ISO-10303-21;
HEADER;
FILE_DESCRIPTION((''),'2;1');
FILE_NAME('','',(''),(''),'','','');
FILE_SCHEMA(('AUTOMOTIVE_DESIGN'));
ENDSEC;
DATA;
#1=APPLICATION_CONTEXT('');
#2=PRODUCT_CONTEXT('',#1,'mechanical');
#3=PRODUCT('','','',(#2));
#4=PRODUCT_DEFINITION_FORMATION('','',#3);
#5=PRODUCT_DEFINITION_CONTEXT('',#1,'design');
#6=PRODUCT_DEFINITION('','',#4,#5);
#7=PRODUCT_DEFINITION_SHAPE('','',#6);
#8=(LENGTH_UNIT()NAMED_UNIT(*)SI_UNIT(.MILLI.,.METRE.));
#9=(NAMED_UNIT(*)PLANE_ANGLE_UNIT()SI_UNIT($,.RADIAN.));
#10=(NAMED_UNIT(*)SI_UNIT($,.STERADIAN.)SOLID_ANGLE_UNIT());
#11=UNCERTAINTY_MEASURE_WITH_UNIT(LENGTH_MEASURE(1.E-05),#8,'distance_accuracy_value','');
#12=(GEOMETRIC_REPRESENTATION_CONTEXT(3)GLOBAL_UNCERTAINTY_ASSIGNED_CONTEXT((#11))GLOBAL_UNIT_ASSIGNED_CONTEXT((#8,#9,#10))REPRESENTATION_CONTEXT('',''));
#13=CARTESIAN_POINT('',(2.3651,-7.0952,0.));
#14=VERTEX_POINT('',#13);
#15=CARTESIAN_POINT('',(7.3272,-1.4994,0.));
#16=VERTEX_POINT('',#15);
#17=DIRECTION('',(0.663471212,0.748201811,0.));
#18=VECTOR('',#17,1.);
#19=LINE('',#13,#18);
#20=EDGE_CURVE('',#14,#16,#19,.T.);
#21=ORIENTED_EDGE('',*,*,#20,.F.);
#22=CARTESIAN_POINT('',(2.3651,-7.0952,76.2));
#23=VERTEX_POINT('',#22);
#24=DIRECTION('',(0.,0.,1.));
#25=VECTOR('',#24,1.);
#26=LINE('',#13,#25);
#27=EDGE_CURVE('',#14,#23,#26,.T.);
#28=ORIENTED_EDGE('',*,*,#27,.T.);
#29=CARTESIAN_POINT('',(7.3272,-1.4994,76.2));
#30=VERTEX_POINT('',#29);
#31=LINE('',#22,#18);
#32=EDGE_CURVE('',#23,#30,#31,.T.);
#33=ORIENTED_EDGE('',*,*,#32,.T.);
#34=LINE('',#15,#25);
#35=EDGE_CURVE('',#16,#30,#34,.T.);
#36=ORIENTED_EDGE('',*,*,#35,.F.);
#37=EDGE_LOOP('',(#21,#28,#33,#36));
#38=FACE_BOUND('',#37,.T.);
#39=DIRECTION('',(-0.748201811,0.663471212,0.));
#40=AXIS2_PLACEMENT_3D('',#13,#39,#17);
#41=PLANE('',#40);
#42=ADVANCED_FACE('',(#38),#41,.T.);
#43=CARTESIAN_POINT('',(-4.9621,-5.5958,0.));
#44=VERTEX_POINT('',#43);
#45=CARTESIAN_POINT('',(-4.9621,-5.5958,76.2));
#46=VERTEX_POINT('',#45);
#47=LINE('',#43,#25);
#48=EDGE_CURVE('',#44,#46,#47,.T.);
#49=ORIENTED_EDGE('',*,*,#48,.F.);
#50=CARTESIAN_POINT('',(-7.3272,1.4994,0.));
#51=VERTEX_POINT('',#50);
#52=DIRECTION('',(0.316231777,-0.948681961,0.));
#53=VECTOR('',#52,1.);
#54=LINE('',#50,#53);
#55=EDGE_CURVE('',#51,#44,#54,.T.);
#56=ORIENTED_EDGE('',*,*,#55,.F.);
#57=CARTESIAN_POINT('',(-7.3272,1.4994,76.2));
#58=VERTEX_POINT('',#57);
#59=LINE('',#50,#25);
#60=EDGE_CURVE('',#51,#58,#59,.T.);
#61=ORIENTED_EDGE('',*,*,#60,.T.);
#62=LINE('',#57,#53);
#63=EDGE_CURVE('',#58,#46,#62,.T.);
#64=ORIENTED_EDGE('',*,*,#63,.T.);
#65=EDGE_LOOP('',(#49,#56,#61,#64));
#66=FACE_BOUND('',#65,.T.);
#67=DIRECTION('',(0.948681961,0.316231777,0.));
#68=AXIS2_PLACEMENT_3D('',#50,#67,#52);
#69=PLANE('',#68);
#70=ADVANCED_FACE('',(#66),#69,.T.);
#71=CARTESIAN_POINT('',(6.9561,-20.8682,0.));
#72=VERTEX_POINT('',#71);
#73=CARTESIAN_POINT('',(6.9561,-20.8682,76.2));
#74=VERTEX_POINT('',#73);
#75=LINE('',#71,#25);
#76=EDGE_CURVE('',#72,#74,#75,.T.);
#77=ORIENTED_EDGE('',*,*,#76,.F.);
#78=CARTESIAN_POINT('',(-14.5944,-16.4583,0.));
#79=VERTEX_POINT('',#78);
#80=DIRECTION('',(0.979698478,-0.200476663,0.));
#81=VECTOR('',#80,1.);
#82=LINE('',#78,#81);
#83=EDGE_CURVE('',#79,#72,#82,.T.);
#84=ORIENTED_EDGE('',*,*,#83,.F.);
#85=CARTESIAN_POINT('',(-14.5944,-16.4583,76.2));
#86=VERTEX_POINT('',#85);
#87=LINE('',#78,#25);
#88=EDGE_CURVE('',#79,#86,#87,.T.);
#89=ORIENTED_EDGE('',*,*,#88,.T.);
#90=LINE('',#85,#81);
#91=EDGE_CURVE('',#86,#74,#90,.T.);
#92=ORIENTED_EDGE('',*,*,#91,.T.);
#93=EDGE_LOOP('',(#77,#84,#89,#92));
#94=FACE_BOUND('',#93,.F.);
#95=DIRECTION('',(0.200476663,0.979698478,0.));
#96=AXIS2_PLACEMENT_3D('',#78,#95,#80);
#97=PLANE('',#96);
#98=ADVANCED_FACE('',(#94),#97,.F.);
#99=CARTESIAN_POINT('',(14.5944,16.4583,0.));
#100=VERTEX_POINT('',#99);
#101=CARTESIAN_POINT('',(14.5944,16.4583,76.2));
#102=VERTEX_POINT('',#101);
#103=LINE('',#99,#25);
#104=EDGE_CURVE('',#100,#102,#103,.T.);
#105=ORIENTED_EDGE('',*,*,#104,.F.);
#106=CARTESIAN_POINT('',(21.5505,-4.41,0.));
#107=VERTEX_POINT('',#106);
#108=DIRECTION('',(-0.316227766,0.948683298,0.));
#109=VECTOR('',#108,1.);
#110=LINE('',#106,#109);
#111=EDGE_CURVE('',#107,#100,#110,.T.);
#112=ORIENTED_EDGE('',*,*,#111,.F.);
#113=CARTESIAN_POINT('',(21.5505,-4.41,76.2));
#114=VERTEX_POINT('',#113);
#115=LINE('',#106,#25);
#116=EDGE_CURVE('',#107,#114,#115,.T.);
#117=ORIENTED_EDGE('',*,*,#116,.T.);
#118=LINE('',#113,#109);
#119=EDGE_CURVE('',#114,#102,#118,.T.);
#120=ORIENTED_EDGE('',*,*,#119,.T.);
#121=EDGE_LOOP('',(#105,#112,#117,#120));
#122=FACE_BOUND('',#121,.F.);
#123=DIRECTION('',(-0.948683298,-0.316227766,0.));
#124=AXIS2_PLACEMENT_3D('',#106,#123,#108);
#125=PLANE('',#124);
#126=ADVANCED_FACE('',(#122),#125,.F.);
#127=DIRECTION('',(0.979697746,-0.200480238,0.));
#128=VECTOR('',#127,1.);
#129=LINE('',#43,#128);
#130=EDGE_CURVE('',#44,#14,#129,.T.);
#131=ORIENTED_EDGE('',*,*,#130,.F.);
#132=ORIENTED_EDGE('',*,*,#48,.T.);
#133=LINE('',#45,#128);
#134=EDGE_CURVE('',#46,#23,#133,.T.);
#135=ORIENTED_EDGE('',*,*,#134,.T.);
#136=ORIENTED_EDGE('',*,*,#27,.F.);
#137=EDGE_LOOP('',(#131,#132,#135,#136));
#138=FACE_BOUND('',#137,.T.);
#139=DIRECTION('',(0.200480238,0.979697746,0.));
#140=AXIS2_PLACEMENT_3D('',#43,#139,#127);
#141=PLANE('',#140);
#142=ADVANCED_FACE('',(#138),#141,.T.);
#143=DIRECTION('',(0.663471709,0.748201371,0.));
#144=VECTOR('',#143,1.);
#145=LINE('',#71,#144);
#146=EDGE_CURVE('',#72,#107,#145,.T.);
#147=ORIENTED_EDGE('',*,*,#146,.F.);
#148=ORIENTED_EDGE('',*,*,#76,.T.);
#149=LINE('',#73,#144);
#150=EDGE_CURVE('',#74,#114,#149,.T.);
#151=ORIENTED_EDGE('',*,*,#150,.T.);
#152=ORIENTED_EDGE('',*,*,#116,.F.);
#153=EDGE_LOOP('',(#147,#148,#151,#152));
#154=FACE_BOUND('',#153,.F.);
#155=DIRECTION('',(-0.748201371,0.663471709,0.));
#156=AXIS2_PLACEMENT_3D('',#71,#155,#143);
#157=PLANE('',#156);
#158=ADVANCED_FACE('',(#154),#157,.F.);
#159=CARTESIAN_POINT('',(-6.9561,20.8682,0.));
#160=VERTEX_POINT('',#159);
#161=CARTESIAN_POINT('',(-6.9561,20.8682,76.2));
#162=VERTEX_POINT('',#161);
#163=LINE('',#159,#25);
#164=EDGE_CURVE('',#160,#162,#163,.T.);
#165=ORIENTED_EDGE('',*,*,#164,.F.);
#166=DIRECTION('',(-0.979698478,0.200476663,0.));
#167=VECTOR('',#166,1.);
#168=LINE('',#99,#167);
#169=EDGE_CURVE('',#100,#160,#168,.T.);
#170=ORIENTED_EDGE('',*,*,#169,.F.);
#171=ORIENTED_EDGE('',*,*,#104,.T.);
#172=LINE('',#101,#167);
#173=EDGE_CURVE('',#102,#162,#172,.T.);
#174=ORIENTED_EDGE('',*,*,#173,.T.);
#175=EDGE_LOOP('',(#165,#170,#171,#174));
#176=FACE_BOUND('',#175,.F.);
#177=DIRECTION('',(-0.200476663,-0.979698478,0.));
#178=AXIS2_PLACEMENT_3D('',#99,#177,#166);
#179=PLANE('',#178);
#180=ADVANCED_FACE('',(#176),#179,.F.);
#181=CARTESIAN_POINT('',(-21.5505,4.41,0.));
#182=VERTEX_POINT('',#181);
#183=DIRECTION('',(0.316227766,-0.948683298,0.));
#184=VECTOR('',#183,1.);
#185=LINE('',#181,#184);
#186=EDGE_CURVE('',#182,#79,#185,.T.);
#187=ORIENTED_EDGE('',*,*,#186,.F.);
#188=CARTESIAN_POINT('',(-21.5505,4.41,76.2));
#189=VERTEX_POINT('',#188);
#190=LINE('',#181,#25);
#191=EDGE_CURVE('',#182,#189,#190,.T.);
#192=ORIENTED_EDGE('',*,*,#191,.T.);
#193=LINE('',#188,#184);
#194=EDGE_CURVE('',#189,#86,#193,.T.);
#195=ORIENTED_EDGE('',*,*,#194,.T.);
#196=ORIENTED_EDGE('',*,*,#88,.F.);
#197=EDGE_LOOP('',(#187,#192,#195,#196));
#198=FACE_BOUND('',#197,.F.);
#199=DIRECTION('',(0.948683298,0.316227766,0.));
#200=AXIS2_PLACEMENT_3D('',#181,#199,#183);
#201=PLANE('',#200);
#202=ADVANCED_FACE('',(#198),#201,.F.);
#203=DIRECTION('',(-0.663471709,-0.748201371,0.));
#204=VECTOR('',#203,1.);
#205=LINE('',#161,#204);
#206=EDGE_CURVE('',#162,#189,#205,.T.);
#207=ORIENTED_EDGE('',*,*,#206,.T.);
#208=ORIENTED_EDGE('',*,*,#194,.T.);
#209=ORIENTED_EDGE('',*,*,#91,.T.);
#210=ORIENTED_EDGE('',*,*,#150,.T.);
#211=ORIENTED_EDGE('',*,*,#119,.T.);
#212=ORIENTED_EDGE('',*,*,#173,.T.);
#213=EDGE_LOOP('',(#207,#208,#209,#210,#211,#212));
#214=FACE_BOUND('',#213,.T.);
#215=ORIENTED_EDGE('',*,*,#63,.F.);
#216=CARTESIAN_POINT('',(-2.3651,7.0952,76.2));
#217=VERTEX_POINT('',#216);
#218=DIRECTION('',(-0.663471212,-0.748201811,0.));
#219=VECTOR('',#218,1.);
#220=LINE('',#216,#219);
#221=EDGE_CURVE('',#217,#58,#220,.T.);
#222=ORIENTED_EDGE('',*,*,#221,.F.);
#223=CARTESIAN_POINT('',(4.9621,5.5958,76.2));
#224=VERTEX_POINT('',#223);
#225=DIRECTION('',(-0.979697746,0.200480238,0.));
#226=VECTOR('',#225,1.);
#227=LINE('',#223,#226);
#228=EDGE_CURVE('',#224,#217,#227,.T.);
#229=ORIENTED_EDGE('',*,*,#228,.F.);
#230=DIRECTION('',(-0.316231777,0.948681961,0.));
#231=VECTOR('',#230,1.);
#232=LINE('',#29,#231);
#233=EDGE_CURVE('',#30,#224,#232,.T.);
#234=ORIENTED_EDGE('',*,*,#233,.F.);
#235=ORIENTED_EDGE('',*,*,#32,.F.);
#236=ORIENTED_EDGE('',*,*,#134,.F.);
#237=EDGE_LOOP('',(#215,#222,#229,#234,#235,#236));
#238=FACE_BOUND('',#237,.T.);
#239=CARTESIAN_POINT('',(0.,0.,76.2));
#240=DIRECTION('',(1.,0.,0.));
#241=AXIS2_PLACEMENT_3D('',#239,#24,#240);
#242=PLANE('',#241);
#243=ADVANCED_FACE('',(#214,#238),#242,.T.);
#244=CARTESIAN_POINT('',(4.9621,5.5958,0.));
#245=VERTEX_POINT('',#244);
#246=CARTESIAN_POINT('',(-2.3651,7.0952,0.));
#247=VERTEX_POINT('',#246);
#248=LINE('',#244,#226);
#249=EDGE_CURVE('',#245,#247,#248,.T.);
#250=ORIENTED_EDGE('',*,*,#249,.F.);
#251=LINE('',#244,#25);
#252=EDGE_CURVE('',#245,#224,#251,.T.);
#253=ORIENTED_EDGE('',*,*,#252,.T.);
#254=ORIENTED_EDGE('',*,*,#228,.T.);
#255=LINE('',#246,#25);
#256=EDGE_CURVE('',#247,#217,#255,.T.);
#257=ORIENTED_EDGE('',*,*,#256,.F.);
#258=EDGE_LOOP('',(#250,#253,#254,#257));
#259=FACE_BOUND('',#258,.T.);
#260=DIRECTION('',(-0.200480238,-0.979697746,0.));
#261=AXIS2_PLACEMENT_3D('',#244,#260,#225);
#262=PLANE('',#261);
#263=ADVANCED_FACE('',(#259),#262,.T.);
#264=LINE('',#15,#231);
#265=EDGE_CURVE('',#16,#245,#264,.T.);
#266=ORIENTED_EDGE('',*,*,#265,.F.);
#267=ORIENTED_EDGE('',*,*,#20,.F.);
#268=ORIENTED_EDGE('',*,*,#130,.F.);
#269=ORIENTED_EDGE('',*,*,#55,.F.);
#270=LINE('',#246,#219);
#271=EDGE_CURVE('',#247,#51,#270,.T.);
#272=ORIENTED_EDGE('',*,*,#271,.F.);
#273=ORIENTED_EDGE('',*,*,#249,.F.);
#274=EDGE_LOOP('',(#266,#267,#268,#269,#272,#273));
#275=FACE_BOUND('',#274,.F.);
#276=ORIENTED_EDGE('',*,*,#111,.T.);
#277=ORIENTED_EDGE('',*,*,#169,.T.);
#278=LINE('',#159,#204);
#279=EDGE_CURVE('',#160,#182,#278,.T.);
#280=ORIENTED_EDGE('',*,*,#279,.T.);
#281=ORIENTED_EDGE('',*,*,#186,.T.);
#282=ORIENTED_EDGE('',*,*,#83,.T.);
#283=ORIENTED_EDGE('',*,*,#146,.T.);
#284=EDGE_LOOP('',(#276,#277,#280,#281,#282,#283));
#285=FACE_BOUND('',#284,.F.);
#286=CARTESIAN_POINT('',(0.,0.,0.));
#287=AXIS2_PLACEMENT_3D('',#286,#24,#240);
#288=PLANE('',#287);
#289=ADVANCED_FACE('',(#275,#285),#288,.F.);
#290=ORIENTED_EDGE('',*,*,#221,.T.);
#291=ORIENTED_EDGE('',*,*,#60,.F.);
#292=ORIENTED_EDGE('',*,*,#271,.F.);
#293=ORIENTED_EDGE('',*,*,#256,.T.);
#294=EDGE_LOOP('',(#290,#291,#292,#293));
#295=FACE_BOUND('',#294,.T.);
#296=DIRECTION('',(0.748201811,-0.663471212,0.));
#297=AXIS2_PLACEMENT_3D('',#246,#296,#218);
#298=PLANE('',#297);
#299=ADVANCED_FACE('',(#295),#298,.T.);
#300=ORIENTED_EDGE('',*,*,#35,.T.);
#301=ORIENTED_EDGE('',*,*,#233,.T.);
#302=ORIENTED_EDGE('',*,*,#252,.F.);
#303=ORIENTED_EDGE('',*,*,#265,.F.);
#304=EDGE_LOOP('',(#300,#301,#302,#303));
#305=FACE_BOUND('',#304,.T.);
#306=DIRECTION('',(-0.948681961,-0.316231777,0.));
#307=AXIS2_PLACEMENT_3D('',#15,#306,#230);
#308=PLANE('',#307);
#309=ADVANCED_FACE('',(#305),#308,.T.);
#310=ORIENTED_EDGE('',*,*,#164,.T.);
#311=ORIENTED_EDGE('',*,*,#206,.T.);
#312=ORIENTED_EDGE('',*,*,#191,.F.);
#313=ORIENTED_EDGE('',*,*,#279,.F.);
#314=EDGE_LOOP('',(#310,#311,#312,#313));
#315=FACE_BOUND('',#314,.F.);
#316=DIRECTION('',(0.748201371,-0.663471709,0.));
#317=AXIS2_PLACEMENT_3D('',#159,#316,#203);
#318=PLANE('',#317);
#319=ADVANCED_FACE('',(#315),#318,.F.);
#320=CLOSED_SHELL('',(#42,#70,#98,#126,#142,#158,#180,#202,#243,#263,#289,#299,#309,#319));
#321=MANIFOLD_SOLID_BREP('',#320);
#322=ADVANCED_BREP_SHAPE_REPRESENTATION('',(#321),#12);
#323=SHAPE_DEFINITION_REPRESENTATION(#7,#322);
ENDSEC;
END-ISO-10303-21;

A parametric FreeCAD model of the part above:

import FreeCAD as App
import Part
import Sketcher
Q = App.Units.Quantity

doc = App.newDocument("Part")
body = doc.addObject("PartDesign::Body", "Body")

sketch1 = body.newObject("Sketcher::SketchObject", "Sketch")
sketch1.AttachmentSupport = (doc.getObject("XY_Plane"), [""])
sketch1.MapMode = "FlatFace"
sketch1.addGeometry(Part.LineSegment(App.Vector(15, 16, 0), App.Vector(-7, 21, 0)), False)
sketch1.addGeometry(Part.LineSegment(App.Vector(-7, 21, 0), App.Vector(-22, 4, 0)), False)
sketch1.addGeometry(Part.LineSegment(App.Vector(-22, 4, 0), App.Vector(-15, -16, 0)), False)
sketch1.addGeometry(Part.LineSegment(App.Vector(-15, -16, 0), App.Vector(7, -21, 0)), False)
sketch1.addGeometry(Part.LineSegment(App.Vector(7, -21, 0), App.Vector(22, -4, 0)), False)
sketch1.addGeometry(Part.LineSegment(App.Vector(22, -4, 0), App.Vector(15, 16, 0)), False)
sketch1.addGeometry(Part.LineSegment(App.Vector(-2, 7, 0), App.Vector(5, 6, 0)), False)
sketch1.addGeometry(Part.LineSegment(App.Vector(5, 6, 0), App.Vector(7, -1, 0)), False)
sketch1.addGeometry(Part.LineSegment(App.Vector(7, -1, 0), App.Vector(2, -7, 0)), False)
sketch1.addGeometry(Part.LineSegment(App.Vector(2, -7, 0), App.Vector(-5, -6, 0)), False)
sketch1.addGeometry(Part.LineSegment(App.Vector(-5, -6, 0), App.Vector(-7, 1, 0)), False)
sketch1.addGeometry(Part.LineSegment(App.Vector(-7, 1, 0), App.Vector(-2, 7, 0)), False)
sketch1.addConstraint(Sketcher.Constraint("Coincident", 0, 2, 1, 1))
sketch1.addConstraint(Sketcher.Constraint("Coincident", 1, 2, 2, 1))
sketch1.addConstraint(Sketcher.Constraint("Coincident", 2, 2, 3, 1))
sketch1.addConstraint(Sketcher.Constraint("Coincident", 3, 2, 4, 1))
sketch1.addConstraint(Sketcher.Constraint("Coincident", 4, 2, 5, 1))
sketch1.addConstraint(Sketcher.Constraint("Coincident", 5, 2, 0, 1))
sketch1.addConstraint(Sketcher.Constraint("Coincident", 6, 2, 7, 1))
sketch1.addConstraint(Sketcher.Constraint("Coincident", 7, 2, 8, 1))
sketch1.addConstraint(Sketcher.Constraint("Coincident", 8, 2, 9, 1))
sketch1.addConstraint(Sketcher.Constraint("Coincident", 9, 2, 10, 1))
sketch1.addConstraint(Sketcher.Constraint("Coincident", 10, 2, 11, 1))
sketch1.addConstraint(Sketcher.Constraint("Coincident", 11, 2, 6, 1))
sketch1.addConstraint(Sketcher.Constraint("Symmetric", 0, 2, 3, 2, -1, 1))
sketch1.addConstraint(Sketcher.Constraint("Symmetric", 1, 2, 4, 2, -1, 1))
sketch1.addConstraint(Sketcher.Constraint("Symmetric", 2, 2, 5, 2, -1, 1))
sketch1.addConstraint(Sketcher.Constraint("Symmetric", 6, 2, 9, 2, -1, 1))
sketch1.addConstraint(Sketcher.Constraint("Symmetric", 7, 2, 10, 2, -1, 1))
sketch1.addConstraint(Sketcher.Constraint("Symmetric", 8, 2, 11, 2, -1, 1))
sketch1.addConstraint(Sketcher.Constraint("Parallel", 3, 6))
sketch1.addConstraint(Sketcher.Constraint("Parallel", 5, 7))
sketch1.addConstraint(Sketcher.Constraint("Parallel", 4, 8))
sketch1.addConstraint(Sketcher.Constraint("Equal", 0, 1))
sketch1.addConstraint(Sketcher.Constraint("Equal", 1, 2))
sketch1.addConstraint(Sketcher.Constraint("Equal", 6, 7))
sketch1.addConstraint(Sketcher.Constraint("Equal", 7, 8))
sketch1.addConstraint(Sketcher.Constraint("DistanceY", 7, 2, 5, 2, Q("0.707 in")))
sketch1.addConstraint(Sketcher.Constraint("DistanceY", -1, 1, 6, 2, Q("0.2203 in")))
sketch1.addConstraint(Sketcher.Constraint("DistanceX", 1, 2, 3, 2, Q("1.1223 in")))
sketch1.addConstraint(Sketcher.Constraint("DistanceY", 3, 2, 1, 2, Q("0.9952 in")))
sketch1.addConstraint(Sketcher.Constraint("DistanceX", 1, 2, 4, 2, Q("1.6969 in")))
pad1 = body.newObject("PartDesign::Pad", "Pad")
pad1.Profile = sketch1
pad1.Length = Q("3 in")

doc.recompute()
